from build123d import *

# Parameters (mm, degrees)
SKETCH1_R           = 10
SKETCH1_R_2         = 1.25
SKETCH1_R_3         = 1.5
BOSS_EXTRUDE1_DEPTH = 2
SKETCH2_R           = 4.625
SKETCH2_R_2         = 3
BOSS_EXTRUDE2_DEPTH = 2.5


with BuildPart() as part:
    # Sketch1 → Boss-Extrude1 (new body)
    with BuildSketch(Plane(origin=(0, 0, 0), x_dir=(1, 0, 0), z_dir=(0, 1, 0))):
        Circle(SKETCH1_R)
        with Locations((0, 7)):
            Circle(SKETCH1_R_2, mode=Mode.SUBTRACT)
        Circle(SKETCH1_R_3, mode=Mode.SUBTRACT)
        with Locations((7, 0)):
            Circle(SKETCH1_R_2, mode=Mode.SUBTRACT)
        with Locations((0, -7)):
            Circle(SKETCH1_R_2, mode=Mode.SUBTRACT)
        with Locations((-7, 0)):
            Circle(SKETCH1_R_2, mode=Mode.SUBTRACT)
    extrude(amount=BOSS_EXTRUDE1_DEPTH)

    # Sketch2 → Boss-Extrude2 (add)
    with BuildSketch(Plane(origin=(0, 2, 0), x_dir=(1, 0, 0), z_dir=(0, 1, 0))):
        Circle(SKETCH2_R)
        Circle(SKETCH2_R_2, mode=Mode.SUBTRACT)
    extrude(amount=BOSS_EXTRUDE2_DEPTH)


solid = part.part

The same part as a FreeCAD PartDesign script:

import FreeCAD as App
import Part
import Sketcher

V = App.Vector
Q = App.Units.Quantity

doc = App.newDocument("Part")
body = doc.addObject("PartDesign::Body", "Body")

# Sketch on XZ plane
sketch1 = body.newObject("Sketcher::SketchObject", "Sketch")
sketch1.AttachmentSupport = (doc.getObject("XZ_Plane"), [""])
sketch1.MapMode = "FlatFace"
sketch1.addGeometry(Part.Circle(V(0, 0, 0), V(0, 0, 1), 10), False)
sketch1.addGeometry(Part.Circle(V(0, 7, 0), V(0, 0, 1), 1.2), False)
sketch1.addGeometry(Part.Circle(V(-7, 0, 0), V(0, 0, 1), 1.2), False)
sketch1.addGeometry(Part.Circle(V(0, 0, 0), V(0, 0, 1), 1.5), False)
sketch1.addGeometry(Part.Circle(V(7, 0, 0), V(0, 0, 1), 1.2), False)
sketch1.addGeometry(Part.Circle(V(0, -7, 0), V(0, 0, 1), 1.2), False)
sketch1.addConstraint(Sketcher.Constraint("Coincident", 0, 3, -1, 1))
sketch1.addConstraint(Sketcher.Constraint("Coincident", 3, 3, -1, 1))
sketch1.addConstraint(Sketcher.Constraint("Equal", 1, 2))
sketch1.addConstraint(Sketcher.Constraint("Equal", 2, 4))
sketch1.addConstraint(Sketcher.Constraint("Equal", 4, 5))
sketch1.addConstraint(Sketcher.Constraint("Symmetric", 2, 3, 4, 3, -1, 1))
sketch1.addConstraint(Sketcher.Constraint("Symmetric", 1, 3, 5, 3, -1, 1))
sketch1.addConstraint(Sketcher.Constraint("PointOnObject", 1, 3, -2))
sketch1.addConstraint(Sketcher.Constraint("PointOnObject", 2, 3, -1))
sketch1.addConstraint(Sketcher.Constraint("Diameter", 0, Q("20 mm")))
sketch1.addConstraint(Sketcher.Constraint("Diameter", 3, Q("3 mm")))
sketch1.addConstraint(Sketcher.Constraint("Diameter", 1, Q("2.5 mm")))
sketch1.addConstraint(Sketcher.Constraint("DistanceY", -1, 1, 1, 3, Q("7 mm")))
sketch1.addConstraint(Sketcher.Constraint("DistanceX", 2, 3, -1, 1, Q("7 mm")))
pad1 = body.newObject("PartDesign::Pad", "Pad")
pad1.Profile = sketch1
pad1.Length = 2
pad1.Reversed = True

# Sketch on XZ plane
sketch2 = body.newObject("Sketcher::SketchObject", "Sketch001")
sketch2.AttachmentSupport = (doc.getObject("XZ_Plane"), [""])
sketch2.MapMode = "FlatFace"
sketch2.AttachmentOffset = App.Placement(V(0, 0, -2), App.Rotation())
sketch2.addGeometry(Part.Circle(V(0, 0, 0), V(0, 0, 1), 4.6), False)
sketch2.addGeometry(Part.Circle(V(0, 0, 0), V(0, 0, 1), 3), False)
sketch2.addConstraint(Sketcher.Constraint("Coincident", 0, 3, -1, 1))
sketch2.addConstraint(Sketcher.Constraint("Coincident", 1, 3, -1, 1))
sketch2.addConstraint(Sketcher.Constraint("Diameter", 1, Q("6 mm")))
sketch2.addConstraint(Sketcher.Constraint("Diameter", 0, Q("9.25 mm")))
pad2 = body.newObject("PartDesign::Pad", "Pad001")
pad2.Profile = sketch2
pad2.Length = 2.5
pad2.Reversed = True

doc.recompute()
